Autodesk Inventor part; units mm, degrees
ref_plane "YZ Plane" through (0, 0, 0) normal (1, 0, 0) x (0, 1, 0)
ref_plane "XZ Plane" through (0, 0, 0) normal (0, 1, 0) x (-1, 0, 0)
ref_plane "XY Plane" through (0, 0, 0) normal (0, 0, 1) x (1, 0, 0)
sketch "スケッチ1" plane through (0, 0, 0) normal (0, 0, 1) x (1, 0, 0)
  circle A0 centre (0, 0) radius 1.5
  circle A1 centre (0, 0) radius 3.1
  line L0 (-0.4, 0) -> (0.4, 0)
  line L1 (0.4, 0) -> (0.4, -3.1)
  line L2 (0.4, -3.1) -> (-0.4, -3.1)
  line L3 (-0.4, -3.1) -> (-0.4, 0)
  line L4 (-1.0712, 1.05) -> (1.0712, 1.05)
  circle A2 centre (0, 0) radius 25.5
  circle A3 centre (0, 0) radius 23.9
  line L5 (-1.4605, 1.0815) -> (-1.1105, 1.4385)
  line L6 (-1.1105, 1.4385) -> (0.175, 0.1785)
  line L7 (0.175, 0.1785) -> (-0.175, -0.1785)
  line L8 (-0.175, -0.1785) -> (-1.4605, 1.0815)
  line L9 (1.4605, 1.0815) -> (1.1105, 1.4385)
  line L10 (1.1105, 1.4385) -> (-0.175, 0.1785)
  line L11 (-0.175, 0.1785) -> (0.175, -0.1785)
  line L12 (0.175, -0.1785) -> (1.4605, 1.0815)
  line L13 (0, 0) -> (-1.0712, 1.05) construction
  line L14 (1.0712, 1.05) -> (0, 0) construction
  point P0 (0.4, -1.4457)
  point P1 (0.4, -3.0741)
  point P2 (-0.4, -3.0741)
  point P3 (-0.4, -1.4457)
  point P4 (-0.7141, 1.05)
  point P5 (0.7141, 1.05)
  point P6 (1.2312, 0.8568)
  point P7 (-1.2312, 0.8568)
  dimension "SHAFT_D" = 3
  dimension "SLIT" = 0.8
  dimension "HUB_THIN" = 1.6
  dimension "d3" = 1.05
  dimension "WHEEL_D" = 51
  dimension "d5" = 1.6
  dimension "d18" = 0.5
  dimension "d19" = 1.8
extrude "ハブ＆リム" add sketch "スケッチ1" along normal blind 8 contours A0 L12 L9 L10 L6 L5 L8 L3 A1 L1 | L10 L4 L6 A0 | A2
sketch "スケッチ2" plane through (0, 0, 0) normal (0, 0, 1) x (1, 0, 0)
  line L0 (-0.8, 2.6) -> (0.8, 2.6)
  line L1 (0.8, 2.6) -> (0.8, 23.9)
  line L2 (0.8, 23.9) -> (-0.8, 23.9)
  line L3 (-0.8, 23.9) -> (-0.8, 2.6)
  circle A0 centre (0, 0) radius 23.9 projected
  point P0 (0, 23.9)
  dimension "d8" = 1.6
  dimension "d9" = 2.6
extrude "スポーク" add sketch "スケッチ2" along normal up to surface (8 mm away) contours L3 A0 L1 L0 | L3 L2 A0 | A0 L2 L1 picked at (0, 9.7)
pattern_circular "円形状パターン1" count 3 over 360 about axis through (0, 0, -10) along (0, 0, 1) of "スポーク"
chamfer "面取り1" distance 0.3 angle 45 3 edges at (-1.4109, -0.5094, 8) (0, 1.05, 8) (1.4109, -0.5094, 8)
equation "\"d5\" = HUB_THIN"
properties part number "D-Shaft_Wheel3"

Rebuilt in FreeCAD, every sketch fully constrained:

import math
import FreeCAD as App
import Part
import Sketcher
from FreeCAD import Vector


def edges_at(feature, points):
    """Names of the edges that pass closest to the given points."""
    edges = feature.Shape.Edges
    near = lambda p: min(range(len(edges)), key=lambda i: edges[i].distToShape(Part.Vertex(*p))[0])
    return sorted({f"Edge{near(p) + 1}" for p in points})


def add_polygon(sketch, points):
    """Adds a closed chain of lines whose ends are joined by coincident constraints."""
    first, n = sketch.GeometryCount, len(points)
    for a, b in zip(points, points[1:] + points[:1]):
        sketch.addGeometry(Part.LineSegment(App.Vector(*a, 0), App.Vector(*b, 0)), False)
    for i in range(n):
        sketch.addConstraint(Sketcher.Constraint("Coincident", first + i, 2, first + (i + 1) % n, 1))

doc = App.newDocument("Part")
body = doc.addObject("PartDesign::Body", "Body")
body.AllowCompound = True

sketch1 = body.newObject("Sketcher::SketchObject", "Sketch")
sketch1.AttachmentSupport = (doc.getObject("XY_Plane"), [""])
sketch1.MapMode = "FlatFace"
sketch1.addGeometry([
    Part.ArcOfCircle(Part.Circle(Vector(0, 0, 0), Vector(0, 0, 1), 1.5), math.radians(-75), math.radians(35)),
    Part.LineSegment(Vector(0.4, -1.45, 0), Vector(0.4, -3.07, 0)),
    Part.ArcOfCircle(Part.Circle(Vector(0, 0, 0), Vector(0, 0, 1), 3.1), math.radians(-83), math.radians(263)),
    Part.LineSegment(Vector(-0.4, -3.07, 0), Vector(-0.4, -1.45, 0)),
    Part.ArcOfCircle(Part.Circle(Vector(0, 0, 0), Vector(0, 0, 1), 1.5), math.radians(145), math.radians(255)),
    Part.LineSegment(Vector(-1.23, 0.86, 0), Vector(-1.46, 1.08, 0)),
    Part.LineSegment(Vector(-1.46, 1.08, 0), Vector(-1.11, 1.44, 0)),
    Part.LineSegment(Vector(-1.11, 1.44, 0), Vector(-0.71, 1.05, 0)),
    Part.LineSegment(Vector(-0.71, 1.05, 0), Vector(0.71, 1.05, 0)),
    Part.LineSegment(Vector(0.71, 1.05, 0), Vector(1.11, 1.44, 0)),
    Part.LineSegment(Vector(1.11, 1.44, 0), Vector(1.46, 1.08, 0)),
    Part.LineSegment(Vector(1.46, 1.08, 0), Vector(1.23, 0.86, 0)),
    Part.Circle(Vector(0, 0, 0), Vector(0, 0, 1), 25.5),
    Part.Circle(Vector(0, 0, 0), Vector(0, 0, 1), 23.9),
], False)
sketch1.addConstraint([
    Sketcher.Constraint("Coincident", 0, 1, 1, 1),
    Sketcher.Constraint("Coincident", 1, 2, 2, 1),
    Sketcher.Constraint("Coincident", 2, 2, 3, 1),
    Sketcher.Constraint("Coincident", 3, 2, 4, 2),
    Sketcher.Constraint("Coincident", 4, 1, 5, 1),
    Sketcher.Constraint("Coincident", 5, 2, 6, 1),
    Sketcher.Constraint("Coincident", 6, 2, 7, 1),
    Sketcher.Constraint("Coincident", 7, 2, 8, 1),
    Sketcher.Constraint("Coincident", 8, 2, 9, 1),
    Sketcher.Constraint("Coincident", 9, 2, 10, 1),
    Sketcher.Constraint("Coincident", 10, 2, 11, 1),
    Sketcher.Constraint("Coincident", 11, 2, 0, 2),
    Sketcher.Constraint("Vertical", 1),
    Sketcher.Constraint("Vertical", 3),
    Sketcher.Constraint("Horizontal", 8),
    Sketcher.Constraint("Coincident", 0, 3, -1, 1),
    Sketcher.Constraint("Coincident", 2, 3, -1, 1),
    Sketcher.Constraint("Coincident", 4, 3, -1, 1),
    Sketcher.Constraint("Coincident", 12, 3, -1, 1),
    Sketcher.Constraint("Coincident", 13, 3, -1, 1),
    Sketcher.Constraint("Equal", 0, 4),
    Sketcher.Constraint("Symmetric", 6, 2, 9, 2, -2),
    Sketcher.Constraint("Symmetric", 5, 2, 10, 2, -2),
    Sketcher.Constraint("Perpendicular", 5, 6),
    Sketcher.Constraint("Perpendicular", 6, 7),
    Sketcher.Constraint("Perpendicular", 9, 10),
    Sketcher.Constraint("Perpendicular", 10, 11),
    Sketcher.Constraint("Horizontal", 1, 2, 2, 2),
    Sketcher.Constraint("Diameter", 12, 51.0),
    Sketcher.Constraint("Radius", 0, 1.5),
    Sketcher.Constraint("Distance", 6, 0.5),
    Sketcher.Constraint("Diameter", 13, 47.8),
    Sketcher.Constraint("Radius", 2, 3.1),
    Sketcher.Constraint("DistanceX", 2, 2, 1, 2, 0.8),
    Sketcher.Constraint("DistanceY", -1, 1, 7, 2, 1.05),
    Sketcher.Constraint("DistanceX", 5, 2, 6, 2, 0.35),
    Sketcher.Constraint("Distance", 5, 0.321),
    Sketcher.Constraint("Distance", 7, 0.555),
])
pad1 = body.newObject("PartDesign::Pad", "Pad")
pad1.Profile = sketch1
pad1.Length = 8

sketch2 = body.newObject("Sketcher::SketchObject", "Sketch001")
sketch2.AttachmentSupport = (doc.getObject("XY_Plane"), [""])
sketch2.MapMode = "FlatFace"
add_polygon(sketch2, [(-0.8, 2.6), (0.8, 2.6), (0.8, 23.9), (-0.8, 23.9)])
sketch2.addConstraint([
    Sketcher.Constraint("Horizontal", 0),
    Sketcher.Constraint("Vertical", 1),
    Sketcher.Constraint("Horizontal", 2),
    Sketcher.Constraint("Vertical", 3),
    Sketcher.Constraint("DistanceX", 0, 1, 0, 2, 1.6),
    Sketcher.Constraint("DistanceY", -1, 1, 0, 2, 2.6),
    Sketcher.Constraint("DistanceY", 1, 1, 1, 2, 21.3),
    Sketcher.Constraint("DistanceX", -1, 1, 0, 2, 0.8),
])
pad2 = body.newObject("PartDesign::Pad", "Pad001")
pad2.Profile = sketch2
pad2.Length = 8
doc.recompute()

polarpattern = body.newObject("PartDesign::PolarPattern", "PolarPattern")
polarpattern.Originals = [pad2]
polarpattern.Axis = (doc.getObject("Z_Axis"), [""])
polarpattern.Angle = 360
polarpattern.Occurrences = 3
body.Tip = polarpattern
doc.recompute()

chamfer = body.newObject("PartDesign::Chamfer", "Chamfer")
chamfer.Base = (polarpattern, edges_at(polarpattern, [(-1.411, -0.509, 8), (0, 1.05, 8), (1.411, -0.509, 8)]))
chamfer.Size = 0.3

doc.recompute()
